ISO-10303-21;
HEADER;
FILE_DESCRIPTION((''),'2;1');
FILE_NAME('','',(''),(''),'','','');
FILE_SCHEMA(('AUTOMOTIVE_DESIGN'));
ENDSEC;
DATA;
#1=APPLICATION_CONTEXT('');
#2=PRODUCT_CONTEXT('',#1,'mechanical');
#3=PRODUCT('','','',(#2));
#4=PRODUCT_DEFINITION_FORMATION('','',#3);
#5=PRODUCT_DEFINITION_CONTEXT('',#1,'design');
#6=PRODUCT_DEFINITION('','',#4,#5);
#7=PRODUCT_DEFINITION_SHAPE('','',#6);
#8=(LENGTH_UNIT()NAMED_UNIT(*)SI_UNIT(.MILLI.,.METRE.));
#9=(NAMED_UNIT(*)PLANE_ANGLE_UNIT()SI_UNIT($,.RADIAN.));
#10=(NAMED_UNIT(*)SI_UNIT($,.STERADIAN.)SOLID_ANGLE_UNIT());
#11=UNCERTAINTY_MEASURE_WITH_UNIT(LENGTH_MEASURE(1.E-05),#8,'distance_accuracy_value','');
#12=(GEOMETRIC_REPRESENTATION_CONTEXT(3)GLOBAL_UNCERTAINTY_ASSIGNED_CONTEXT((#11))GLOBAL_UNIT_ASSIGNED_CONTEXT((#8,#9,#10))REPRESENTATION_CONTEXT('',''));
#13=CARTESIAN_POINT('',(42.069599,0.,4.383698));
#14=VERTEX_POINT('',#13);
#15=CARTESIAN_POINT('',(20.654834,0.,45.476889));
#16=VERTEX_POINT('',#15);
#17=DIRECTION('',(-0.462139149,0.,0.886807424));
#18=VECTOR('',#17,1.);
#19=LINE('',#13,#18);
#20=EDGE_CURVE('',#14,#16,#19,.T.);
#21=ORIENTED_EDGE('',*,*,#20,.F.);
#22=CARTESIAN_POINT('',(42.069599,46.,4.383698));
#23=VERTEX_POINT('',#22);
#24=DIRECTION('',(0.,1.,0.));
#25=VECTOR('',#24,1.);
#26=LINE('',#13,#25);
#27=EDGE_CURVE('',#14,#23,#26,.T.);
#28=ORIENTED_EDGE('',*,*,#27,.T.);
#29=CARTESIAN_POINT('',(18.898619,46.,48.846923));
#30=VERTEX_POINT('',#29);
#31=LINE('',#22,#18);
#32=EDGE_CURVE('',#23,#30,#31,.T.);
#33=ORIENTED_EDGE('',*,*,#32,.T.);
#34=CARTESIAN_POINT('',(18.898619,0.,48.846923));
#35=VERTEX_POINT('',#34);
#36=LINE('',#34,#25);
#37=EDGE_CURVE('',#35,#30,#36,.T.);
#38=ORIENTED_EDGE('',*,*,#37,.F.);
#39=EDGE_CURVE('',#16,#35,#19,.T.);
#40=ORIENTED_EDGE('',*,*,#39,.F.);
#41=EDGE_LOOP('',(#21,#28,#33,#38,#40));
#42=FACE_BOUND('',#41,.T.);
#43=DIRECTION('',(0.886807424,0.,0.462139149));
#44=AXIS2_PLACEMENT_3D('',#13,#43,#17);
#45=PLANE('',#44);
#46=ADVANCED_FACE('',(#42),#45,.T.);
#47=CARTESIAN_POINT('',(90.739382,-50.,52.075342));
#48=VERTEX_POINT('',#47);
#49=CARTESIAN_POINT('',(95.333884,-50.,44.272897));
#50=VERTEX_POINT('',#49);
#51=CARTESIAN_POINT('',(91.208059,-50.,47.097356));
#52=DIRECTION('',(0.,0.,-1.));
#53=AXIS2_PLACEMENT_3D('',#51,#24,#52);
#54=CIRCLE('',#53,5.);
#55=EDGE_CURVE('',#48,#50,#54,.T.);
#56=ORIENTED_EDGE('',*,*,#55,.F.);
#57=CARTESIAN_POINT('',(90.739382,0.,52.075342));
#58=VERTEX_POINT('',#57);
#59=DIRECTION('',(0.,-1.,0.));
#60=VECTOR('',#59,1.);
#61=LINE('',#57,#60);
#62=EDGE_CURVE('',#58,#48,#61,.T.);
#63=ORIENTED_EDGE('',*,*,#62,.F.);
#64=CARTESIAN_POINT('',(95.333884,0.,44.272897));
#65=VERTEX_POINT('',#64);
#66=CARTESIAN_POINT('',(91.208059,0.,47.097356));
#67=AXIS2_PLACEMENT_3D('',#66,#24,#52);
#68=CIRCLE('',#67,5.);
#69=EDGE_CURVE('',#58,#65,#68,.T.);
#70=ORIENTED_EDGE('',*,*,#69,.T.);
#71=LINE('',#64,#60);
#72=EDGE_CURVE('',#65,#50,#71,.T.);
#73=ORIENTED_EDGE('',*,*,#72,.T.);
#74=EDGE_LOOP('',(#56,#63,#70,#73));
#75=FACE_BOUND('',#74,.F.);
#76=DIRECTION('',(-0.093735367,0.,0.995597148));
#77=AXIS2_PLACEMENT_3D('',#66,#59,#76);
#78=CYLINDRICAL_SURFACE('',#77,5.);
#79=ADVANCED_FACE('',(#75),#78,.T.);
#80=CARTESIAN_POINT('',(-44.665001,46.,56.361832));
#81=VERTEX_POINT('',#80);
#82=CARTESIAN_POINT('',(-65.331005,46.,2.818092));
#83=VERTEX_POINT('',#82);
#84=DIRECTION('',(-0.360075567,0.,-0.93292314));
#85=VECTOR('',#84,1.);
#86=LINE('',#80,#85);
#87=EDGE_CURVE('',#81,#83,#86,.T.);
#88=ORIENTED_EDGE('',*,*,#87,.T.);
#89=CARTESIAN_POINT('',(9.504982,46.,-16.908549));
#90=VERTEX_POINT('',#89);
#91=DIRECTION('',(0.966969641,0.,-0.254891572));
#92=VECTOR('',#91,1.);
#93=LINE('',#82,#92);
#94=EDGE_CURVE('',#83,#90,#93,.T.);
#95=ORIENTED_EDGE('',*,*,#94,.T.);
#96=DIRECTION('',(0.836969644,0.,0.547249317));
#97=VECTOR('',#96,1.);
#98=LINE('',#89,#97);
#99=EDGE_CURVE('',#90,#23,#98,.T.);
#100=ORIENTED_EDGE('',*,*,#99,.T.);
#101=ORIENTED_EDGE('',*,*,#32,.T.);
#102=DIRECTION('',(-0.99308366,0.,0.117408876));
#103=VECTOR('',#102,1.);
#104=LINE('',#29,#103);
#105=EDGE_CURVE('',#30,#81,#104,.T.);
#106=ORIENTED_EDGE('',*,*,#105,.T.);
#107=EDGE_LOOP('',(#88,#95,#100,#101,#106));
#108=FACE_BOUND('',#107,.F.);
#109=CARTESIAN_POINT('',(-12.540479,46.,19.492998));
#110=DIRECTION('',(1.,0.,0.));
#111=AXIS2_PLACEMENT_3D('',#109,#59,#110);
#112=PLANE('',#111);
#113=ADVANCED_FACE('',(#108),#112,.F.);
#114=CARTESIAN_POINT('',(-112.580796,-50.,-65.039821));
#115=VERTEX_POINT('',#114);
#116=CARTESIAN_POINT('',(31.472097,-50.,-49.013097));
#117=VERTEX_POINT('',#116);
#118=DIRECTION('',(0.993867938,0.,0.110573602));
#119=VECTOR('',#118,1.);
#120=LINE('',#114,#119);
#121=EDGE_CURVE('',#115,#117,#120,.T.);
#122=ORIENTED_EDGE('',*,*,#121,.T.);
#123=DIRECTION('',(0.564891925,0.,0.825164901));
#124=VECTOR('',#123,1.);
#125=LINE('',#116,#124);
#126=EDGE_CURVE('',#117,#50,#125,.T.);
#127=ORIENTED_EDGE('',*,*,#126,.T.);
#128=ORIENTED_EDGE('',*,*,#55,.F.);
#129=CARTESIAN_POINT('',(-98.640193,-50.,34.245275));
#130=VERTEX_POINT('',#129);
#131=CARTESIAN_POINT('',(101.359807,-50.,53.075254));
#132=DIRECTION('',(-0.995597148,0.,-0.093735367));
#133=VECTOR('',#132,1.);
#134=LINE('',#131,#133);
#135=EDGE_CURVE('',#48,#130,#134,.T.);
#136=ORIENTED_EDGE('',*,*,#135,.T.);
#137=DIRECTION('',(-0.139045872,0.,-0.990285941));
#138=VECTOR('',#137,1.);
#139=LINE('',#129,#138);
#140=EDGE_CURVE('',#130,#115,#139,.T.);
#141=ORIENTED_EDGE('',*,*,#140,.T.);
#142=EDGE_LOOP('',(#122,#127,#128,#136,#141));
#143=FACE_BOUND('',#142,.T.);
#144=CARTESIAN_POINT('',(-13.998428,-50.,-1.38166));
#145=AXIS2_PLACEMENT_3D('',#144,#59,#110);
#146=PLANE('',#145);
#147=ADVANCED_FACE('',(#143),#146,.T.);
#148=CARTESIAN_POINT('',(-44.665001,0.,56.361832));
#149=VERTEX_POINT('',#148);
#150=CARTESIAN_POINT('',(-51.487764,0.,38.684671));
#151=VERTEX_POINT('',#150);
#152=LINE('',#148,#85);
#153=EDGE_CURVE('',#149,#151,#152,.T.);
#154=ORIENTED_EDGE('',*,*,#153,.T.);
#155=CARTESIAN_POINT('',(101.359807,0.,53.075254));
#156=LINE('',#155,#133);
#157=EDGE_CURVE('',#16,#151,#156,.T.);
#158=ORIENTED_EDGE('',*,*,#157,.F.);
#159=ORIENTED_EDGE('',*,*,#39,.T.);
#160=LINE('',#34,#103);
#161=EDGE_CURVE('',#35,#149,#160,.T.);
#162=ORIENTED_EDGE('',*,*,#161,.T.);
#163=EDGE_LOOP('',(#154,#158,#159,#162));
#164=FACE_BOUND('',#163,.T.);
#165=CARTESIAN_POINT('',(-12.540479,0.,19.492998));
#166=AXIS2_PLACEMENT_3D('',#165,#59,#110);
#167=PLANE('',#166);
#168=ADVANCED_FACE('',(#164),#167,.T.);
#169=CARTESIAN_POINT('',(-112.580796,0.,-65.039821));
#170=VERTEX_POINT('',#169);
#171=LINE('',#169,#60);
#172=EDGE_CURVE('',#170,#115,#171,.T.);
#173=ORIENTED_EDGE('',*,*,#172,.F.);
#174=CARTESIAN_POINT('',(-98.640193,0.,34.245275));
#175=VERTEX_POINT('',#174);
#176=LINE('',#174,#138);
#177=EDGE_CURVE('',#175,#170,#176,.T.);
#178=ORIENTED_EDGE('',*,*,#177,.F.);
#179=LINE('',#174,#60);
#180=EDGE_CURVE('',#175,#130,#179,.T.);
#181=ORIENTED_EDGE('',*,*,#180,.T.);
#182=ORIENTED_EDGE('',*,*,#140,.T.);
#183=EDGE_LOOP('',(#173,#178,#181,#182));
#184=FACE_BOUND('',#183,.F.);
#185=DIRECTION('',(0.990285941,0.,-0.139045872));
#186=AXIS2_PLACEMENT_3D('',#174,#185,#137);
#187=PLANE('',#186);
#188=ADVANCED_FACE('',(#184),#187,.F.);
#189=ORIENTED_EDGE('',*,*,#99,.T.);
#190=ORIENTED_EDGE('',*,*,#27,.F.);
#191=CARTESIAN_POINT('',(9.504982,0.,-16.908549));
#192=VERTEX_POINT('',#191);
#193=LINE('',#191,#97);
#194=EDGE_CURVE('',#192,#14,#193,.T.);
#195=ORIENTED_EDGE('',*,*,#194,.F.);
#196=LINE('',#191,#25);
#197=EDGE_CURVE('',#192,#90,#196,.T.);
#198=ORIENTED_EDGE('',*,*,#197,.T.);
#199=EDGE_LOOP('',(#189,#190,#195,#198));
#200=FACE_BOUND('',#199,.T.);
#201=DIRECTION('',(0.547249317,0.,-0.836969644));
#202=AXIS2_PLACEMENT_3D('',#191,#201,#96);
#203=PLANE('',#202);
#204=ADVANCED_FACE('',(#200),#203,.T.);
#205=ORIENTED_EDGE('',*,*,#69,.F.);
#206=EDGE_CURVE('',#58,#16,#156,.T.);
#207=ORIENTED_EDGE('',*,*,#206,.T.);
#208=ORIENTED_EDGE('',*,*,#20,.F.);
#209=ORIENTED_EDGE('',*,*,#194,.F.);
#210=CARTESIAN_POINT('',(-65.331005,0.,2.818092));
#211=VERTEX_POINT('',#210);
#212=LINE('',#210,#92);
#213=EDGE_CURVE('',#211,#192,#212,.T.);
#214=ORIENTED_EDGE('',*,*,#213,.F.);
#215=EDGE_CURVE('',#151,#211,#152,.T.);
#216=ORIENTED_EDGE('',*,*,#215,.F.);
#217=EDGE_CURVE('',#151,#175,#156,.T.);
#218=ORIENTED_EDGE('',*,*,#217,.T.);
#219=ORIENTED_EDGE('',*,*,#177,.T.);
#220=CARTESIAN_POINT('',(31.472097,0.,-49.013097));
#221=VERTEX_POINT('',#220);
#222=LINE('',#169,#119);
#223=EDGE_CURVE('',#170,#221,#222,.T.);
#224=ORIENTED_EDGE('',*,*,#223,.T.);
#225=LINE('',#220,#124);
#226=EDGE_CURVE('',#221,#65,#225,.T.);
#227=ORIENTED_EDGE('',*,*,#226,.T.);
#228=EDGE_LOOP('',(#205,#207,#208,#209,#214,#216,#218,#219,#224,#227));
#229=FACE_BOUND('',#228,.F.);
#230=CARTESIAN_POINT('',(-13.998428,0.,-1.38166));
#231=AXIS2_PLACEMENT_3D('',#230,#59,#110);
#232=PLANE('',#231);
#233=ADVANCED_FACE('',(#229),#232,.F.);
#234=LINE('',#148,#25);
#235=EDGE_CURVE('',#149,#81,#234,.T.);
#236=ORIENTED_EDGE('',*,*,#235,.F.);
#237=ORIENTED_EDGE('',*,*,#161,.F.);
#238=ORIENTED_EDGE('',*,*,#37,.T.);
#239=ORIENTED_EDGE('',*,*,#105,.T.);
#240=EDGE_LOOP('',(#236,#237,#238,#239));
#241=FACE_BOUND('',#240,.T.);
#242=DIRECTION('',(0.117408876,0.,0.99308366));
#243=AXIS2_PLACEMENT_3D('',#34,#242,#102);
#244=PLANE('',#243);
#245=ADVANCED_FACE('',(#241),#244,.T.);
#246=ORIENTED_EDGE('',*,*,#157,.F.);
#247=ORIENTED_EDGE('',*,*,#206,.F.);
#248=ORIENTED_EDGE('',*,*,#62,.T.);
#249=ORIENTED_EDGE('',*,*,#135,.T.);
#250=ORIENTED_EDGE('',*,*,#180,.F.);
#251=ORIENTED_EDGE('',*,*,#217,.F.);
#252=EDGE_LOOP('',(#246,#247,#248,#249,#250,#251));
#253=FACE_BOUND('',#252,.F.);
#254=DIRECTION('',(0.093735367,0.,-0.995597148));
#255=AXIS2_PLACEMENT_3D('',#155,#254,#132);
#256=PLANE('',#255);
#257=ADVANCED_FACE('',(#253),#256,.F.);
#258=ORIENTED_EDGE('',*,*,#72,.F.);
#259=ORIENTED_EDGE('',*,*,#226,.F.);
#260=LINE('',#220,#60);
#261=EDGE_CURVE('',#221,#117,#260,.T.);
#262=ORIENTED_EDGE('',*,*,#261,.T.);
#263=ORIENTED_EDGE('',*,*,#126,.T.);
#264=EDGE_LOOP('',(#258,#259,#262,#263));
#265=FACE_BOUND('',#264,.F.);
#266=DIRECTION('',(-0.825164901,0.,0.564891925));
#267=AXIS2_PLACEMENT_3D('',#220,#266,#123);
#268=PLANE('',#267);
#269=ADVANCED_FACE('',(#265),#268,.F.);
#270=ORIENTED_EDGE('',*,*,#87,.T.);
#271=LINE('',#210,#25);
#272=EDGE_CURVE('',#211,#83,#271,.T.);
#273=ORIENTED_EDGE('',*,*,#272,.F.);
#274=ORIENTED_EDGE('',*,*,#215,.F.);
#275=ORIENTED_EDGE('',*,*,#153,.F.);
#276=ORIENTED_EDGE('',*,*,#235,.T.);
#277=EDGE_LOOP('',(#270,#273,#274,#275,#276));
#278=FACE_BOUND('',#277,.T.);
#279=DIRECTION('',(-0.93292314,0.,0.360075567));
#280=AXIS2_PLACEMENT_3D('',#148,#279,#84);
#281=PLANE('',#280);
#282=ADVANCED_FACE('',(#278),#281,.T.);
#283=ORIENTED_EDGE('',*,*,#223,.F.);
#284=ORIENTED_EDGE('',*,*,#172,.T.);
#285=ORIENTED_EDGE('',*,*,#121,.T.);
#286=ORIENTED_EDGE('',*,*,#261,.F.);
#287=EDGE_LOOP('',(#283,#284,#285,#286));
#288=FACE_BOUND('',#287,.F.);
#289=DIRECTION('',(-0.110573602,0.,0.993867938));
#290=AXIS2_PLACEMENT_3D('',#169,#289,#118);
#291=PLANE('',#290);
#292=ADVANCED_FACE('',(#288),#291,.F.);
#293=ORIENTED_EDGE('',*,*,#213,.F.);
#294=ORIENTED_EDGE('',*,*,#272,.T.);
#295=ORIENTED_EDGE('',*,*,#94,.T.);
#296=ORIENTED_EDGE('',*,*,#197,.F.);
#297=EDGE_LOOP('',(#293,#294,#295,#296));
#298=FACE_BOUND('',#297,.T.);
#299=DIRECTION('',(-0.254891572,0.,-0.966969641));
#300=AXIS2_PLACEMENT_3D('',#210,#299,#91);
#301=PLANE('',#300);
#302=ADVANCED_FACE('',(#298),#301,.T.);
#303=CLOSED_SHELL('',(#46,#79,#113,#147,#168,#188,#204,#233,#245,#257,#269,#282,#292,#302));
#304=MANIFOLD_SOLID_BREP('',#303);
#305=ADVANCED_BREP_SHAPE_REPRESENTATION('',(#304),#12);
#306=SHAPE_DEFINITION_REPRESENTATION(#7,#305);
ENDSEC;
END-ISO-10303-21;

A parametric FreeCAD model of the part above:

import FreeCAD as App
import Part
import Sketcher

V = App.Vector
Q = App.Units.Quantity


def edges_at(feature, points):
    """Names of the edges that pass closest to the given points."""
    edges = feature.Shape.Edges
    near = lambda p: min(range(len(edges)), key=lambda i: edges[i].distToShape(Part.Vertex(*p))[0])
    return sorted({f"Edge{near(p) + 1}" for p in points})


def add_polygon(sketch, points):
    """Adds a closed chain of lines whose ends are joined by coincident constraints."""
    first, n = sketch.GeometryCount, len(points)
    for a, b in zip(points, points[1:] + points[:1]):
        sketch.addGeometry(Part.LineSegment(App.Vector(*a, 0), App.Vector(*b, 0)), False)
    for i in range(n):
        sketch.addConstraint(Sketcher.Constraint("Coincident", first + i, 2, first + (i + 1) % n, 1))

doc = App.newDocument("Part")
params = doc.addObject("Spreadsheet::Sheet", "Params")
for row, (alias, value) in enumerate([
    ("pad1_length", "30 mm"),
    ("pad2_length", "50 mm"),
    ("fillet_radius", "5 mm"),
    ("pad3_length", "46 mm"),
], start=1):
    params.set(f"A{row}", alias)
    params.set(f"B{row}", "=" + value)
    params.setAlias(f"B{row}", alias)

body = doc.addObject("PartDesign::Body", "Body")

sketch1 = body.newObject("Sketcher::SketchObject", "Sketch")
sketch1.AttachmentSupport = (doc.getObject("XZ_Plane"), [""])
sketch1.MapMode = "FlatFace"
add_polygon(sketch1, [(26, 40), (-63, 37), (-47, -22), (35, -16)])
sketch1.addConstraint([
    Sketcher.Constraint("Distance", 2, Q("81.661952 mm")),
    Sketcher.Constraint("Distance", 3, Q("56.686308 mm")),
    Sketcher.Constraint("DistanceY", -1, 1, 0, 2, Q("36.885388 mm")),
    Sketcher.Constraint("DistanceY", -1, 1, 3, 2, Q("40.070482 mm")),
    Sketcher.Constraint("DistanceY", 1, 2, 2, 2, Q("6.28734 mm")),
    Sketcher.Constraint("DistanceX", 0, 2, 2, 2, Q("97.559988 mm")),
    Sketcher.Constraint("DistanceX", 3, 2, 2, 2, Q("8.249559 mm")),
    Sketcher.Constraint("DistanceX", 0, 2, -1, 1, Q("62.947713 mm")),
])
pad1 = body.newObject("PartDesign::Pad", "Pad")
pad1.Profile = sketch1
pad1.setExpression("Length", "Params.pad1_length")
body2 = doc.addObject("PartDesign::Body", "Body001")

sketch2 = body2.newObject("Sketcher::SketchObject", "Sketch001")
sketch2.AttachmentSupport = (doc.getObject("XZ_Plane001"), [""])
sketch2.MapMode = "FlatFace"
add_polygon(sketch2, [(101, 53), (-99, 34), (-113, -65), (31, -49)])
sketch2.addConstraint([
    Sketcher.Constraint("DistanceX", 0, 2, 3, 2, Q("200 mm")),
    Sketcher.Constraint("DistanceY", 1, 2, -1, 1, Q("65.039821 mm")),
    Sketcher.Constraint("DistanceX", 0, 2, 2, 2, Q("130.11229 mm")),
    Sketcher.Constraint("DistanceY", 2, 2, 0, 2, Q("83.258372 mm")),
    Sketcher.Constraint("DistanceY", 2, 2, 3, 2, Q("102.088351 mm")),
    Sketcher.Constraint("Distance", 1, Q("100.259018 mm")),
    Sketcher.Constraint("Distance", 2, Q("144.941684 mm")),
    Sketcher.Constraint("DistanceX", 0, 2, -1, 1, Q("98.640193 mm")),
])
pad2 = body2.newObject("PartDesign::Pad", "Pad001")
pad2.Profile = sketch2
pad2.setExpression("Length", "Params.pad2_length")
doc.recompute()

fillet = body2.newObject("PartDesign::Fillet", "Fillet")
fillet.Base = (pad2, edges_at(pad2, [(101.36, -25, 53.075)]))
fillet.setExpression("Radius", "Params.fillet_radius")

sketch3 = body2.newObject("Sketcher::SketchObject", "Sketch002")
sketch3.AttachmentSupport = (doc.getObject("XZ_Plane001"), [""])
sketch3.MapMode = "FlatFace"
add_polygon(sketch3, [(19, 49), (-45, 56), (-65, 3), (10, -17), (42, 4)])
sketch3.addConstraint([
    Sketcher.Constraint("DistanceX", 0, 2, -1, 1, Q("44.665001 mm")),
    Sketcher.Constraint("DistanceX", -1, 1, 3, 2, Q("42.069599 mm")),
    Sketcher.Constraint("DistanceY", -1, 1, 3, 2, Q("4.383698 mm")),
    Sketcher.Constraint("Distance", 0, Q("64.00631 mm")),
    Sketcher.Constraint("Distance", 2, Q("77.392282 mm")),
    Sketcher.Constraint("DistanceY", -1, 1, 0, 2, Q("56.361832 mm")),
    Sketcher.Constraint("DistanceY", -1, 1, 1, 2, Q("2.818092 mm")),
    Sketcher.Constraint("DistanceY", 2, 2, -1, 1, Q("16.908549 mm")),
    Sketcher.Constraint("DistanceX", -1, 1, 4, 2, Q("18.898619 mm")),
    Sketcher.Constraint("Distance", 1, Q("57.393517 mm")),
])
pad3 = body2.newObject("PartDesign::Pad", "Pad002")
pad3.Profile = sketch3
pad3.setExpression("Length", "Params.pad3_length")
pad3.Reversed = True
body.Visibility = False

doc.recompute()
